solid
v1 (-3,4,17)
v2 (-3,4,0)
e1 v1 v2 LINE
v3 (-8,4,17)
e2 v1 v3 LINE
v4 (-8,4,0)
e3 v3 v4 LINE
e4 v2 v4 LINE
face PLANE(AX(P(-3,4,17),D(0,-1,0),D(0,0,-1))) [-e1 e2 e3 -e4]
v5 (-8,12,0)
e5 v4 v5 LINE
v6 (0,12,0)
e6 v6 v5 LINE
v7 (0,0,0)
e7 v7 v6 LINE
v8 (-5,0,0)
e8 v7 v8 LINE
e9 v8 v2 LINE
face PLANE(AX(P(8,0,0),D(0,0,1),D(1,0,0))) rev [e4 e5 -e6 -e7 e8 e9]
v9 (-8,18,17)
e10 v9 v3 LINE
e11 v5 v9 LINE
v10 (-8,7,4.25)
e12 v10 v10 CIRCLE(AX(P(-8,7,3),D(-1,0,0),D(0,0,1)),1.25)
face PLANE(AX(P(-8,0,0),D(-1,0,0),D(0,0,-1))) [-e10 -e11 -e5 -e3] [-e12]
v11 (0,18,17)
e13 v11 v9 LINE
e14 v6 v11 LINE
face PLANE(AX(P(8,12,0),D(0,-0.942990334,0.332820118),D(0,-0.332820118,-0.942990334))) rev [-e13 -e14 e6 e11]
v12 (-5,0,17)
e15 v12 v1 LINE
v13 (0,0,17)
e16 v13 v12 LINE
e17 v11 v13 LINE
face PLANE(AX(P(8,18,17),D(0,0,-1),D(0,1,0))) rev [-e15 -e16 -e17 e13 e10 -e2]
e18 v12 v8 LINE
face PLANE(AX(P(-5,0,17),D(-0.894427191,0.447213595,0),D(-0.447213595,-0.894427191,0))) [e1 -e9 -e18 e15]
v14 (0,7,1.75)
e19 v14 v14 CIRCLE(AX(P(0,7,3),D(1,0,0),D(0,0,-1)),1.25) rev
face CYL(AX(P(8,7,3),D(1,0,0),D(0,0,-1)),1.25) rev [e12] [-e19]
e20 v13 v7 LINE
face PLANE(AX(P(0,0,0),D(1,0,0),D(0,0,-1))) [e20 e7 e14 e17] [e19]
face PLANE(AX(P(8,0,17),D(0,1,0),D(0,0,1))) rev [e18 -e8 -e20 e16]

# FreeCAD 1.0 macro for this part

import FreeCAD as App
import Part
import Sketcher
from FreeCAD import Vector


def add_polygon(sketch, points):
    """Adds a closed chain of lines whose ends are joined by coincident constraints."""
    first, n = sketch.GeometryCount, len(points)
    for a, b in zip(points, points[1:] + points[:1]):
        sketch.addGeometry(Part.LineSegment(App.Vector(*a, 0), App.Vector(*b, 0)), False)
    for i in range(n):
        sketch.addConstraint(Sketcher.Constraint("Coincident", first + i, 2, first + (i + 1) % n, 1))

doc = App.newDocument("Part")
body = doc.addObject("PartDesign::Body", "Body")

sketch1 = body.newObject("Sketcher::SketchObject", "Sketch")
sketch1.AttachmentSupport = (doc.getObject("YZ_Plane"), [""])
sketch1.MapMode = "FlatFace"
add_polygon(sketch1, [(0, 0), (12, 0), (18, 17), (0, 17)])
sketch1.addConstraint(Sketcher.Constraint("Horizontal", 0))
sketch1.addConstraint(Sketcher.Constraint("Horizontal", 2))
sketch1.addConstraint(Sketcher.Constraint("Vertical", 3))
sketch1.addConstraint(Sketcher.Constraint("Coincident", 3, 2, -1, 1))
sketch1.addConstraint(Sketcher.Constraint("DistanceX", 0, 1, 0, 2, 12.0))
sketch1.addConstraint(Sketcher.Constraint("DistanceX", 2, 2, 2, 1, 18.0))
sketch1.addConstraint(Sketcher.Constraint("DistanceY", 3, 2, 3, 1, 17.0))
pad1 = body.newObject("PartDesign::Pad", "Pad")
pad1.Profile = sketch1
pad1.Length = 8

sketch2 = body.newObject("Sketcher::SketchObject", "Sketch001")
sketch2.AttachmentSupport = (doc.getObject("XY_Plane"), [""])
sketch2.MapMode = "FlatFace"
add_polygon(sketch2, [(8, 0), (5, 0), (3, 4), (8, 4)])
sketch2.addConstraint(Sketcher.Constraint("Horizontal", 0))
sketch2.addConstraint(Sketcher.Constraint("Horizontal", 2))
sketch2.addConstraint(Sketcher.Constraint("Vertical", 3))
sketch2.addConstraint(Sketcher.Constraint("PointOnObject", 0, 2, -1))
sketch2.addConstraint(Sketcher.Constraint("DistanceX", 0, 2, 0, 1, 3.0))
sketch2.addConstraint(Sketcher.Constraint("DistanceX", 2, 1, 2, 2, 5.0))
sketch2.addConstraint(Sketcher.Constraint("DistanceY", 3, 2, 3, 1, 4.0))
sketch2.addConstraint(Sketcher.Constraint("DistanceX", -1, 1, 0, 2, 5.0))
pocket1 = body.newObject("PartDesign::Pocket", "Pocket")
pocket1.Profile = sketch2
pocket1.Type = "ThroughAll"
pocket1.Reversed = True

sketch3 = body.newObject("Sketcher::SketchObject", "Sketch002")
sketch3.AttachmentSupport = (doc.getObject("YZ_Plane"), [""])
sketch3.MapMode = "FlatFace"
sketch3.AttachmentOffset = App.Placement(Vector(0, 0, 8), App.Rotation())
sketch3.addGeometry(Part.Circle(Vector(7, 3, 0), Vector(0, 0, 1), 1.2), False)
sketch3.addConstraint(Sketcher.Constraint("Diameter", 0, 2.5))
sketch3.addConstraint(Sketcher.Constraint("DistanceX", -1, 1, 0, 3, 7.0))
sketch3.addConstraint(Sketcher.Constraint("DistanceY", -1, 1, 0, 3, 3.0))
doc.recompute()
hole = body.newObject("PartDesign::Hole", "Hole")
hole.Profile = sketch3
hole.ThreadType = "None"
hole.Diameter = 2.5
hole.DepthType = "ThroughAll"
doc.recompute()

mirrored = body.newObject("PartDesign::Mirrored", "Mirrored")
mirrored.Originals = [pad1, pocket1, hole]
mirrored.MirrorPlane = (doc.getObject("YZ_Plane"), [""])
body.Tip = mirrored

sketch4 = body.newObject("Sketcher::SketchObject", "Sketch003")
sketch4.AttachmentSupport = (doc.getObject("YZ_Plane"), [""])
sketch4.MapMode = "FlatFace"
sketch4.AttachmentOffset = App.Placement(Vector(0, 0, 8), App.Rotation())
add_polygon(sketch4, [(19, 19), (-2, 19), (-2, -2), (19, -2)])
sketch4.addConstraint(Sketcher.Constraint("Horizontal", 0))
sketch4.addConstraint(Sketcher.Constraint("Vertical", 1))
sketch4.addConstraint(Sketcher.Constraint("Horizontal", 2))
sketch4.addConstraint(Sketcher.Constraint("Vertical", 3))
sketch4.addConstraint(Sketcher.Constraint("DistanceX", 0, 2, 0, 1, 21.535112))
sketch4.addConstraint(Sketcher.Constraint("DistanceY", 1, 2, 1, 1, 20.825163))
sketch4.addConstraint(Sketcher.Constraint("DistanceY", -1, 1, 0, 2, 18.597049))
sketch4.addConstraint(Sketcher.Constraint("DistanceX", 0, 2, -1, 1, 2.240855))
pocket2 = body.newObject("PartDesign::Pocket", "Pocket001")
pocket2.Profile = sketch4
pocket2.Length = 8

doc.recompute()
